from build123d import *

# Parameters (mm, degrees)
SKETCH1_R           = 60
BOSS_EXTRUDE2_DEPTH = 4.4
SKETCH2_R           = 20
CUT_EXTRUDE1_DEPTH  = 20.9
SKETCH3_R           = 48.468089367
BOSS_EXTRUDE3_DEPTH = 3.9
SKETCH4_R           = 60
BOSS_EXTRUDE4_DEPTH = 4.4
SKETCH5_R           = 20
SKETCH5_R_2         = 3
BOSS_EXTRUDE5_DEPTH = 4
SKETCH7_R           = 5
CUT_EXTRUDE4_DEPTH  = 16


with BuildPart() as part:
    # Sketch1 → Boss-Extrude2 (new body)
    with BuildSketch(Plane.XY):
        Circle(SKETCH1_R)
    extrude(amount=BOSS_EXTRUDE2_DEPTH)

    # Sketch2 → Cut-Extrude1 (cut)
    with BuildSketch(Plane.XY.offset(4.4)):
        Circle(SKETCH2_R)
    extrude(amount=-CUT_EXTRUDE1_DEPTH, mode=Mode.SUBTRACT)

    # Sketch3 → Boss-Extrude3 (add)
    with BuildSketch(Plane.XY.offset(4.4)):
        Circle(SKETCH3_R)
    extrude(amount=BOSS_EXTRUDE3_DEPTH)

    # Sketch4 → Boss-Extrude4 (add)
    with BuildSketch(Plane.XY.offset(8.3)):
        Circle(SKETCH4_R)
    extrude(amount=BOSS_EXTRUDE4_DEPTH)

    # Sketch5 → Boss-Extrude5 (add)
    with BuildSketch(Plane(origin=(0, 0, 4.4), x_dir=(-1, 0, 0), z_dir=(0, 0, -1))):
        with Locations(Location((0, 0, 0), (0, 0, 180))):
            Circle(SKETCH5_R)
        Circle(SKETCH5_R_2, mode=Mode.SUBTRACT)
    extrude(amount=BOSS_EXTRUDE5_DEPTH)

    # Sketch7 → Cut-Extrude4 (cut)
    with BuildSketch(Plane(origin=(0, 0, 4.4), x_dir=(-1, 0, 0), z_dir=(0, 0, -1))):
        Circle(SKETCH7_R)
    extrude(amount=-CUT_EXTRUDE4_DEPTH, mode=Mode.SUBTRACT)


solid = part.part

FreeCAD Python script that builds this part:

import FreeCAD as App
import Part
import Sketcher

V = App.Vector
Q = App.Units.Quantity

doc = App.newDocument("Part")
body = doc.addObject("PartDesign::Body", "Body")

# Sketch on XY plane
sketch1 = doc.addObject("Sketcher::SketchObject", "Sketch")
body.addObject(sketch1)
sketch1.AttachmentSupport = (doc.XY_Plane, [""])
sketch1.MapMode = "FlatFace"
sketch1.addGeometry(Part.Circle(V(0, 0, 0), V(0, 0, 1), 60), False)
sketch1.addConstraint([
    Sketcher.Constraint("Coincident", 0, 3, -1, 1),
    Sketcher.Constraint("Diameter", 0, Q("120 mm")),
])
pad1 = doc.addObject("PartDesign::Pad", "Pad")
body.addObject(pad1)
pad1.Profile = sketch1
pad1.Length = 4.4

# Sketch on XY plane
sketch2 = doc.addObject("Sketcher::SketchObject", "Sketch001")
body.addObject(sketch2)
sketch2.AttachmentSupport = (doc.XY_Plane, [""])
sketch2.MapMode = "FlatFace"
sketch2.AttachmentOffset = App.Placement(V(0, 0, 4.4), App.Rotation())
sketch2.addGeometry(Part.Circle(V(0, 0, 0), V(0, 0, 1), 20), False)
sketch2.addConstraint([
    Sketcher.Constraint("Coincident", 0, 3, -1, 1),
    Sketcher.Constraint("Diameter", 0, Q("40 mm")),
])
pocket1 = doc.addObject("PartDesign::Pocket", "Pocket")
body.addObject(pocket1)
pocket1.Profile = sketch2
pocket1.Length = 20.9

# Sketch on XY plane
sketch3 = doc.addObject("Sketcher::SketchObject", "Sketch002")
body.addObject(sketch3)
sketch3.AttachmentSupport = (doc.XY_Plane, [""])
sketch3.MapMode = "FlatFace"
sketch3.AttachmentOffset = App.Placement(V(0, 0, 4.4), App.Rotation())
sketch3.addGeometry(Part.Circle(V(0, 0, 0), V(0, 0, 1), 48.468089), False)
sketch3.addConstraint([
    Sketcher.Constraint("Coincident", 0, 3, -1, 1),
    Sketcher.Constraint("Diameter", 0, Q("96.936179 mm")),
])
pad2 = doc.addObject("PartDesign::Pad", "Pad001")
body.addObject(pad2)
pad2.Profile = sketch3
pad2.Length = 3.9

# Sketch on XY plane
sketch4 = doc.addObject("Sketcher::SketchObject", "Sketch003")
body.addObject(sketch4)
sketch4.AttachmentSupport = (doc.XY_Plane, [""])
sketch4.MapMode = "FlatFace"
sketch4.AttachmentOffset = App.Placement(V(0, 0, 8.3), App.Rotation())
sketch4.addGeometry(Part.Circle(V(0, 0, 0), V(0, 0, 1), 60), False)
sketch4.addConstraint([
    Sketcher.Constraint("Coincident", 0, 3, -1, 1),
    Sketcher.Constraint("Diameter", 0, Q("120 mm")),
])
pad3 = doc.addObject("PartDesign::Pad", "Pad002")
body.addObject(pad3)
pad3.Profile = sketch4
pad3.Length = 4.4

# Sketch on XY plane
sketch5 = doc.addObject("Sketcher::SketchObject", "Sketch004")
body.addObject(sketch5)
sketch5.AttachmentSupport = (doc.XY_Plane, [""])
sketch5.MapMode = "FlatFace"
sketch5.AttachmentOffset = App.Placement(V(0, 0, 4.4), App.Rotation())
sketch5.addGeometry([
    Part.Circle(V(0, 0, 0), V(0, 0, 1), 20),
    Part.Circle(V(0, 0, 0), V(0, 0, 1), 3),
], False)
sketch5.addConstraint([
    Sketcher.Constraint("Coincident", 0, 3, -1, 1),
    Sketcher.Constraint("Coincident", 1, 3, -1, 1),
    Sketcher.Constraint("Diameter", 0, Q("40 mm")),
    Sketcher.Constraint("Diameter", 1, Q("6 mm")),
])
pad4 = doc.addObject("PartDesign::Pad", "Pad003")
body.addObject(pad4)
pad4.Profile = sketch5
pad4.Length = 4
pad4.Reversed = True

# Sketch on XY plane
sketch6 = doc.addObject("Sketcher::SketchObject", "Sketch005")
body.addObject(sketch6)
sketch6.AttachmentSupport = (doc.XY_Plane, [""])
sketch6.MapMode = "FlatFace"
sketch6.AttachmentOffset = App.Placement(V(0, 0, 4.4), App.Rotation())
sketch6.addGeometry(Part.Circle(V(0, 0, 0), V(0, 0, 1), 5), False)
sketch6.addConstraint([
    Sketcher.Constraint("Coincident", 0, 3, -1, 1),
    Sketcher.Constraint("Diameter", 0, Q("10 mm")),
])
pocket2 = doc.addObject("PartDesign::Pocket", "Pocket001")
body.addObject(pocket2)
pocket2.Profile = sketch6
pocket2.Length = 16
pocket2.Reversed = True

doc.recompute()
